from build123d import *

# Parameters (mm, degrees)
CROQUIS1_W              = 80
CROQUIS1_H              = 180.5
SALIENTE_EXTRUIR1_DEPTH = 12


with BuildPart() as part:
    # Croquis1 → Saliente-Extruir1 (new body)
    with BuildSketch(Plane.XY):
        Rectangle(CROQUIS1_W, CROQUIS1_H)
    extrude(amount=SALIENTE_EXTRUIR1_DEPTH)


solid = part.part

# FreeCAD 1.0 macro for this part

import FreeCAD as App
import Part
import Sketcher

doc = App.newDocument("Part")
body = doc.addObject("PartDesign::Body", "Body")

sketch1 = body.newObject("Sketcher::SketchObject", "Sketch")
sketch1.AttachmentSupport = (doc.getObject("XY_Plane"), [""])
sketch1.MapMode = "FlatFace"
sketch1.addGeometry(Part.LineSegment(App.Vector(-40, 90, 0), App.Vector(-40, -90, 0)), False)
sketch1.addGeometry(Part.LineSegment(App.Vector(-40, -90, 0), App.Vector(40, -90, 0)), False)
sketch1.addGeometry(Part.LineSegment(App.Vector(40, -90, 0), App.Vector(40, 90, 0)), False)
sketch1.addGeometry(Part.LineSegment(App.Vector(40, 90, 0), App.Vector(-40, 90, 0)), False)
sketch1.addConstraint(Sketcher.Constraint("Coincident", 0, 2, 1, 1))
sketch1.addConstraint(Sketcher.Constraint("Coincident", 1, 2, 2, 1))
sketch1.addConstraint(Sketcher.Constraint("Coincident", 2, 2, 3, 1))
sketch1.addConstraint(Sketcher.Constraint("Coincident", 3, 2, 0, 1))
sketch1.addConstraint(Sketcher.Constraint("Vertical", 0))
sketch1.addConstraint(Sketcher.Constraint("Horizontal", 1))
sketch1.addConstraint(Sketcher.Constraint("Vertical", 2))
sketch1.addConstraint(Sketcher.Constraint("Horizontal", 3))
sketch1.addConstraint(Sketcher.Constraint("Symmetric", 0, 2, 2, 2, -1, 1))
sketch1.addConstraint(Sketcher.Constraint("DistanceX", 1, 1, 1, 2, 80.0))
sketch1.addConstraint(Sketcher.Constraint("DistanceY", 0, 2, 0, 1, 180.5))
pad1 = body.newObject("PartDesign::Pad", "Pad")
pad1.Profile = sketch1
pad1.Length = 12

doc.recompute()
